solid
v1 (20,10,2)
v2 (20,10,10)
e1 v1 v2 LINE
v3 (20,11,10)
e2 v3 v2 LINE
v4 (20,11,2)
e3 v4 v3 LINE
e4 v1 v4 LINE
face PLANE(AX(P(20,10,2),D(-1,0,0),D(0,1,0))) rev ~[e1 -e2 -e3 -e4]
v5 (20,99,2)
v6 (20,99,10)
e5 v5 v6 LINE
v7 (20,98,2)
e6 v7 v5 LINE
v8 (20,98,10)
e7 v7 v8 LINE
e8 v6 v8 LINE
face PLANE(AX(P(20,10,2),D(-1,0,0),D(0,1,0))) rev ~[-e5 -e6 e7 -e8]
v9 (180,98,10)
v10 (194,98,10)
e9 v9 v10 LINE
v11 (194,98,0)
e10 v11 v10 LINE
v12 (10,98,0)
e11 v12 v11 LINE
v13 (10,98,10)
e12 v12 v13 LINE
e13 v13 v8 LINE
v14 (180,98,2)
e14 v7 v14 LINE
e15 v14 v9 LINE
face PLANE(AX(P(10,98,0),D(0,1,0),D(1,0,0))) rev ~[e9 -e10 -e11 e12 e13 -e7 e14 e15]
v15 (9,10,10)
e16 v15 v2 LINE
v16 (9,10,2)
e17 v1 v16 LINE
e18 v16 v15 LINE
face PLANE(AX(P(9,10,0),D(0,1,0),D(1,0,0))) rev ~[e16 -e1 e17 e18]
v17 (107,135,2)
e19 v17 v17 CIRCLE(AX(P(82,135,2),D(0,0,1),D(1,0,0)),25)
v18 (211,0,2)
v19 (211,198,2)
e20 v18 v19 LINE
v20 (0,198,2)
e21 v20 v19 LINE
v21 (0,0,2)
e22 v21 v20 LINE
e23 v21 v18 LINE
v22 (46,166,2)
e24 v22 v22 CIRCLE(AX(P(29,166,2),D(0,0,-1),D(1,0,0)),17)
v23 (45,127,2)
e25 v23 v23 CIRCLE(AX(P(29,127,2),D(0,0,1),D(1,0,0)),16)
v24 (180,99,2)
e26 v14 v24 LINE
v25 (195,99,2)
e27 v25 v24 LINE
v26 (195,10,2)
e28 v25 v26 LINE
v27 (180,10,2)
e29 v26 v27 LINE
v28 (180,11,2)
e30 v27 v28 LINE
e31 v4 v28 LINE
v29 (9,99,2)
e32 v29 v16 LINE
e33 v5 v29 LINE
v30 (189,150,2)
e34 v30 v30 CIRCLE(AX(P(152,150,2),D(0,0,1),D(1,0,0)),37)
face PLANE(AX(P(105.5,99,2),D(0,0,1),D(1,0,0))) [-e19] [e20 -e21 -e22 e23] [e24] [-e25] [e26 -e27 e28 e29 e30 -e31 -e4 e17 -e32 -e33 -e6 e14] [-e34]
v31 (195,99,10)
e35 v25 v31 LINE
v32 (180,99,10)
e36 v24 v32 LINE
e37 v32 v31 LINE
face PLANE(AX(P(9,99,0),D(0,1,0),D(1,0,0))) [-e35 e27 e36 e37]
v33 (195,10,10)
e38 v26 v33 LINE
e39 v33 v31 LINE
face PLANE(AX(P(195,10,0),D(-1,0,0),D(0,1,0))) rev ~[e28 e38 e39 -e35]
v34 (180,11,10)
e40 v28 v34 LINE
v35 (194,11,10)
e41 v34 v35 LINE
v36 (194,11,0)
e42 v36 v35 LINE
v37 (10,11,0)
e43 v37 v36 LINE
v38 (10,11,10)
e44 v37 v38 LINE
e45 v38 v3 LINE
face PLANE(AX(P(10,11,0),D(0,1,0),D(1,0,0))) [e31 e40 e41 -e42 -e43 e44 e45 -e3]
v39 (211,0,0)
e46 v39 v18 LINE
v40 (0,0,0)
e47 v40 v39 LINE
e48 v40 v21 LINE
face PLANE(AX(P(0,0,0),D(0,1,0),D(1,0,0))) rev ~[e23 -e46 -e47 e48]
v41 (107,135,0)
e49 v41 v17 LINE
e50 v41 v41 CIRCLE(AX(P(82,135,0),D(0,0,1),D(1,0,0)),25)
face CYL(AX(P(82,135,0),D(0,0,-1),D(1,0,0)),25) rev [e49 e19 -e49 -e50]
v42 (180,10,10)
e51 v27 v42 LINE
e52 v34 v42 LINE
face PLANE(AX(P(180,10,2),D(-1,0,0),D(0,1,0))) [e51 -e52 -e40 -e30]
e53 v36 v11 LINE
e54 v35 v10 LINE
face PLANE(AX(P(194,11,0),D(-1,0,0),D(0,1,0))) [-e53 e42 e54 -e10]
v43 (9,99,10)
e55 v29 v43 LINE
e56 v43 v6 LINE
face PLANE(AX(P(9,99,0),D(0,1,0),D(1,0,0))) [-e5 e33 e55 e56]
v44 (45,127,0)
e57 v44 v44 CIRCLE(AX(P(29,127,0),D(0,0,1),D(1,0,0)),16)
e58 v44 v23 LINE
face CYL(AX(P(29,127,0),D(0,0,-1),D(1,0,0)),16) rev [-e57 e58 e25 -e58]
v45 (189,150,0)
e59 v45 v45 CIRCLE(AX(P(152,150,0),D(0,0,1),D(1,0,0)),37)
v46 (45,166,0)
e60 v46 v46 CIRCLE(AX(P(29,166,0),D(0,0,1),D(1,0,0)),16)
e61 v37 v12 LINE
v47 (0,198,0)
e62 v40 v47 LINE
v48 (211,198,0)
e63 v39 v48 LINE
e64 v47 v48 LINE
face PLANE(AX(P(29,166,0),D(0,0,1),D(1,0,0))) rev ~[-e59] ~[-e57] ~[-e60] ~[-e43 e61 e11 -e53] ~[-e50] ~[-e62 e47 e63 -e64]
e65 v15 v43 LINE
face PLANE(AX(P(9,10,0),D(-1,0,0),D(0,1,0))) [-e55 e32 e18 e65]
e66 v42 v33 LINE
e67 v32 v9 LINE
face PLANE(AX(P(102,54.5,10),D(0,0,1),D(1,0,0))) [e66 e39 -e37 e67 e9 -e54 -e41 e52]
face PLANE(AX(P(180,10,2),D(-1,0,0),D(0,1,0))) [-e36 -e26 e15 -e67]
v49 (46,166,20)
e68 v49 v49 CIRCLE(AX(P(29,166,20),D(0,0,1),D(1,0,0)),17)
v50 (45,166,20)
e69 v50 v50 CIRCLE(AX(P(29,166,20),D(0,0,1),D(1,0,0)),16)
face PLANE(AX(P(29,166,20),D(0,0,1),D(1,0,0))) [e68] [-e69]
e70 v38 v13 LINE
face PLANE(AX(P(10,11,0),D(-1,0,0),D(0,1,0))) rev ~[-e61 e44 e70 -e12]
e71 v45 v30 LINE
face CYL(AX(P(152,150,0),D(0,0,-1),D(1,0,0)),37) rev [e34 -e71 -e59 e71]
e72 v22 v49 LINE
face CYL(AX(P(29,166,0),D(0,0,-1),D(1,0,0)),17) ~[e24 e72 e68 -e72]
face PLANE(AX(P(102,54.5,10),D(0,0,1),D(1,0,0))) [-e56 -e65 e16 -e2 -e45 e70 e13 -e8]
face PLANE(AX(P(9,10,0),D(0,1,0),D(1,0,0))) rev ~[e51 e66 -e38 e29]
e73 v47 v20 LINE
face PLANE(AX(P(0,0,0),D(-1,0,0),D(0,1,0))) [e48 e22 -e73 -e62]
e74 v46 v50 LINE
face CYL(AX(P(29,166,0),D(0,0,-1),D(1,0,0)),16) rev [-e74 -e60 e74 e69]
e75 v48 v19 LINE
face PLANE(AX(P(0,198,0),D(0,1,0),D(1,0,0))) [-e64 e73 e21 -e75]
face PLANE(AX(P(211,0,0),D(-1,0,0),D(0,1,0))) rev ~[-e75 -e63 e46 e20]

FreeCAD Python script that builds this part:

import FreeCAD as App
import Part
import Sketcher
from FreeCAD import Vector

doc = App.newDocument("Part")
body = doc.addObject("PartDesign::Body", "Body")

# Sketch on XY plane
sketch1 = doc.addObject("Sketcher::SketchObject", "Sketch")
body.addObject(sketch1)
sketch1.AttachmentSupport = (doc.XY_Plane, [""])
sketch1.MapMode = "FlatFace"
sketch1.addGeometry([
    Part.LineSegment(Vector(0, 198, 0), Vector(0, 0, 0)),
    Part.LineSegment(Vector(0, 0, 0), Vector(211, 0, 0)),
    Part.LineSegment(Vector(211, 0, 0), Vector(211, 198, 0)),
    Part.LineSegment(Vector(211, 198, 0), Vector(0, 198, 0)),
], False)
sketch1.addConstraint([
    Sketcher.Constraint("Coincident", 0, 2, 1, 1),
    Sketcher.Constraint("Coincident", 1, 2, 2, 1),
    Sketcher.Constraint("Coincident", 2, 2, 3, 1),
    Sketcher.Constraint("Coincident", 3, 2, 0, 1),
    Sketcher.Constraint("Vertical", 0),
    Sketcher.Constraint("Horizontal", 1),
    Sketcher.Constraint("Vertical", 2),
    Sketcher.Constraint("Horizontal", 3),
    Sketcher.Constraint("Coincident", 0, 2, -1, 1),
    Sketcher.Constraint("DistanceX", 1, 1, 1, 2, 211.0),
    Sketcher.Constraint("DistanceY", 0, 2, 0, 1, 198.0),
])
pad1 = doc.addObject("PartDesign::Pad", "Pad")
body.addObject(pad1)
pad1.Profile = sketch1
pad1.Length = 2

# Sketch on XY plane
sketch2 = doc.addObject("Sketcher::SketchObject", "Sketch001")
body.addObject(sketch2)
sketch2.AttachmentSupport = (doc.XY_Plane, [""])
sketch2.MapMode = "FlatFace"
sketch2.addGeometry([
    Part.LineSegment(Vector(9, 99, 0), Vector(9, 10, 0)),
    Part.LineSegment(Vector(9, 10, 0), Vector(195, 10, 0)),
    Part.LineSegment(Vector(195, 10, 0), Vector(195, 99, 0)),
    Part.LineSegment(Vector(195, 99, 0), Vector(9, 99, 0)),
], False)
sketch2.addConstraint([
    Sketcher.Constraint("Coincident", 0, 2, 1, 1),
    Sketcher.Constraint("Coincident", 1, 2, 2, 1),
    Sketcher.Constraint("Coincident", 2, 2, 3, 1),
    Sketcher.Constraint("Coincident", 3, 2, 0, 1),
    Sketcher.Constraint("Vertical", 0),
    Sketcher.Constraint("Horizontal", 1),
    Sketcher.Constraint("Vertical", 2),
    Sketcher.Constraint("Horizontal", 3),
    Sketcher.Constraint("DistanceX", 1, 1, 1, 2, 186.0),
    Sketcher.Constraint("DistanceY", 0, 2, 0, 1, 89.0),
    Sketcher.Constraint("DistanceX", -1, 1, 0, 2, 9.0),
    Sketcher.Constraint("DistanceY", -1, 1, 0, 2, 10.0),
])
pad2 = doc.addObject("PartDesign::Pad", "Pad001")
body.addObject(pad2)
pad2.Profile = sketch2
pad2.Length = 10

# Sketch on XY plane
sketch3 = doc.addObject("Sketcher::SketchObject", "Sketch002")
body.addObject(sketch3)
sketch3.AttachmentSupport = (doc.XY_Plane, [""])
sketch3.MapMode = "FlatFace"
sketch3.addGeometry([
    Part.LineSegment(Vector(10, 98, 0), Vector(10, 11, 0)),
    Part.LineSegment(Vector(10, 11, 0), Vector(194, 11, 0)),
    Part.LineSegment(Vector(194, 11, 0), Vector(194, 98, 0)),
    Part.LineSegment(Vector(194, 98, 0), Vector(10, 98, 0)),
], False)
sketch3.addConstraint([
    Sketcher.Constraint("Coincident", 0, 2, 1, 1),
    Sketcher.Constraint("Coincident", 1, 2, 2, 1),
    Sketcher.Constraint("Coincident", 2, 2, 3, 1),
    Sketcher.Constraint("Coincident", 3, 2, 0, 1),
    Sketcher.Constraint("Vertical", 0),
    Sketcher.Constraint("Horizontal", 1),
    Sketcher.Constraint("Vertical", 2),
    Sketcher.Constraint("Horizontal", 3),
    Sketcher.Constraint("DistanceX", 1, 1, 1, 2, 184.0),
    Sketcher.Constraint("DistanceY", 0, 2, 0, 1, 87.0),
    Sketcher.Constraint("DistanceX", -1, 1, 0, 2, 10.0),
    Sketcher.Constraint("DistanceY", -1, 1, 0, 2, 11.0),
])
pocket1 = doc.addObject("PartDesign::Pocket", "Pocket")
body.addObject(pocket1)
pocket1.Profile = sketch3
pocket1.Length = 10
pocket1.Reversed = True

# Sketch on XY plane
sketch4 = doc.addObject("Sketcher::SketchObject", "Sketch003")
body.addObject(sketch4)
sketch4.AttachmentSupport = (doc.XY_Plane, [""])
sketch4.MapMode = "FlatFace"
sketch4.AttachmentOffset = App.Placement(Vector(0, 0, 2), App.Rotation())
sketch4.addGeometry([
    Part.LineSegment(Vector(20, 99, 0), Vector(20, 10, 0)),
    Part.LineSegment(Vector(20, 10, 0), Vector(180, 10, 0)),
    Part.LineSegment(Vector(180, 10, 0), Vector(180, 99, 0)),
    Part.LineSegment(Vector(180, 99, 0), Vector(20, 99, 0)),
], False)
sketch4.addConstraint([
    Sketcher.Constraint("Coincident", 0, 2, 1, 1),
    Sketcher.Constraint("Coincident", 1, 2, 2, 1),
    Sketcher.Constraint("Coincident", 2, 2, 3, 1),
    Sketcher.Constraint("Coincident", 3, 2, 0, 1),
    Sketcher.Constraint("Vertical", 0),
    Sketcher.Constraint("Horizontal", 1),
    Sketcher.Constraint("Vertical", 2),
    Sketcher.Constraint("Horizontal", 3),
    Sketcher.Constraint("DistanceX", 1, 1, 1, 2, 160.0),
    Sketcher.Constraint("DistanceY", 0, 2, 0, 1, 89.0),
    Sketcher.Constraint("DistanceX", -1, 1, 0, 2, 20.0),
    Sketcher.Constraint("DistanceY", -1, 1, 0, 2, 10.0),
])
pocket2 = doc.addObject("PartDesign::Pocket", "Pocket001")
body.addObject(pocket2)
pocket2.Profile = sketch4
pocket2.Length = 10
pocket2.Reversed = True

# Sketch on XY plane
sketch5 = doc.addObject("Sketcher::SketchObject", "Sketch004")
body.addObject(sketch5)
sketch5.AttachmentSupport = (doc.XY_Plane, [""])
sketch5.MapMode = "FlatFace"
sketch5.addGeometry(Part.Circle(Vector(29, 127, 0), Vector(0, 0, 1), 16), False)
sketch5.addConstraint([
    Sketcher.Constraint("Diameter", 0, 32.0),
    Sketcher.Constraint("DistanceX", -1, 1, 0, 3, 29.0),
    Sketcher.Constraint("DistanceY", -1, 1, 0, 3, 127.0),
])
pocket3 = doc.addObject("PartDesign::Pocket", "Pocket002")
body.addObject(pocket3)
pocket3.Profile = sketch5
pocket3.Length = 2
pocket3.Reversed = True

# Sketch on XY plane
sketch6 = doc.addObject("Sketcher::SketchObject", "Sketch005")
body.addObject(sketch6)
sketch6.AttachmentSupport = (doc.XY_Plane, [""])
sketch6.MapMode = "FlatFace"
sketch6.addGeometry(Part.Circle(Vector(82, 135, 0), Vector(0, 0, 1), 25), False)
sketch6.addConstraint([
    Sketcher.Constraint("Diameter", 0, 50.0),
    Sketcher.Constraint("DistanceX", -1, 1, 0, 3, 82.0),
    Sketcher.Constraint("DistanceY", -1, 1, 0, 3, 135.0),
])
pocket4 = doc.addObject("PartDesign::Pocket", "Pocket003")
body.addObject(pocket4)
pocket4.Profile = sketch6
pocket4.Length = 2
pocket4.Reversed = True

# Sketch on XY plane
sketch7 = doc.addObject("Sketcher::SketchObject", "Sketch006")
body.addObject(sketch7)
sketch7.AttachmentSupport = (doc.XY_Plane, [""])
sketch7.MapMode = "FlatFace"
sketch7.addGeometry(Part.Circle(Vector(29, 166, 0), Vector(0, 0, 1), 17), False)
sketch7.addConstraint([
    Sketcher.Constraint("Diameter", 0, 34.0),
    Sketcher.Constraint("DistanceX", -1, 1, 0, 3, 29.0),
    Sketcher.Constraint("DistanceY", -1, 1, 0, 3, 166.0),
])
pad3 = doc.addObject("PartDesign::Pad", "Pad002")
body.addObject(pad3)
pad3.Profile = sketch7
pad3.Length = 20

# Sketch on XY plane
sketch8 = doc.addObject("Sketcher::SketchObject", "Sketch007")
body.addObject(sketch8)
sketch8.AttachmentSupport = (doc.XY_Plane, [""])
sketch8.MapMode = "FlatFace"
sketch8.addGeometry(Part.Circle(Vector(29, 166, 0), Vector(0, 0, 1), 16), False)
sketch8.addConstraint([
    Sketcher.Constraint("Diameter", 0, 32.0),
    Sketcher.Constraint("DistanceX", -1, 1, 0, 3, 29.0),
    Sketcher.Constraint("DistanceY", -1, 1, 0, 3, 166.0),
])
pocket5 = doc.addObject("PartDesign::Pocket", "Pocket004")
body.addObject(pocket5)
pocket5.Profile = sketch8
pocket5.Length = 20
pocket5.Reversed = True

# Sketch on XY plane
sketch9 = doc.addObject("Sketcher::SketchObject", "Sketch008")
body.addObject(sketch9)
sketch9.AttachmentSupport = (doc.XY_Plane, [""])
sketch9.MapMode = "FlatFace"
sketch9.addGeometry(Part.Circle(Vector(152, 150, 0), Vector(0, 0, 1), 37), False)
sketch9.addConstraint([
    Sketcher.Constraint("Diameter", 0, 74.0),
    Sketcher.Constraint("DistanceX", -1, 1, 0, 3, 152.0),
    Sketcher.Constraint("DistanceY", -1, 1, 0, 3, 150.0),
])
pocket6 = doc.addObject("PartDesign::Pocket", "Pocket005")
body.addObject(pocket6)
pocket6.Profile = sketch9
pocket6.Length = 2
pocket6.Reversed = True

doc.recompute()
